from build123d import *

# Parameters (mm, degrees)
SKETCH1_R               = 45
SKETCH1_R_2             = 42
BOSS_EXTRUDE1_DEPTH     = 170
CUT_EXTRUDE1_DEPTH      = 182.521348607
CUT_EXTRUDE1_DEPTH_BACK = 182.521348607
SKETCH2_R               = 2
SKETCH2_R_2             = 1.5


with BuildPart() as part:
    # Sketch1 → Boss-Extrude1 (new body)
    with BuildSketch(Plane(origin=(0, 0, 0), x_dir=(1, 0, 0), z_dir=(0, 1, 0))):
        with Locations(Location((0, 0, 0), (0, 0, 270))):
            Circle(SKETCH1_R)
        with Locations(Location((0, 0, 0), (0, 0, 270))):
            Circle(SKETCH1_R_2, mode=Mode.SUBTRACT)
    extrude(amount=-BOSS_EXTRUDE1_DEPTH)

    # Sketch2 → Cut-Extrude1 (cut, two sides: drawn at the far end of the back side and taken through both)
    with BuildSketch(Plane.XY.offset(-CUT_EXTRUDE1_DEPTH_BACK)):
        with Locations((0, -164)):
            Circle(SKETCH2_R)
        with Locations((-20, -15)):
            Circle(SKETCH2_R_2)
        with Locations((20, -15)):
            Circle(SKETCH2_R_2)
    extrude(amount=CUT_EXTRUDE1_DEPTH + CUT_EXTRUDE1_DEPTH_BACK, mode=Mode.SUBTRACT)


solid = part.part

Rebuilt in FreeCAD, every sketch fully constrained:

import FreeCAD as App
import Part
import Sketcher
from FreeCAD import Vector
Q = App.Units.Quantity

doc = App.newDocument("Part")
body = doc.addObject("PartDesign::Body", "Body")

# Sketch on XZ plane
sketch1 = body.newObject("Sketcher::SketchObject", "Sketch")
sketch1.AttachmentSupport = (doc.getObject("XZ_Plane"), [""])
sketch1.MapMode = "FlatFace"
sketch1.addGeometry(Part.Circle(Vector(0, 0, 0), Vector(0, 0, 1), 45), False)
sketch1.addGeometry(Part.Circle(Vector(0, 0, 0), Vector(0, 0, 1), 42), False)
sketch1.addConstraint(Sketcher.Constraint("Coincident", 0, 3, -1, 1))
sketch1.addConstraint(Sketcher.Constraint("Coincident", 1, 3, -1, 1))
sketch1.addConstraint(Sketcher.Constraint("Diameter", 0, Q("90 mm")))
sketch1.addConstraint(Sketcher.Constraint("Diameter", 1, Q("84 mm")))
pad1 = body.newObject("PartDesign::Pad", "Pad")
pad1.Profile = sketch1
pad1.Length = 170

# Sketch on XY plane
sketch2 = body.newObject("Sketcher::SketchObject", "Sketch001")
sketch2.AttachmentSupport = (doc.getObject("XY_Plane"), [""])
sketch2.MapMode = "FlatFace"
sketch2.addGeometry(Part.Circle(Vector(0, -164, 0), Vector(0, 0, 1), 2), False)
sketch2.addGeometry(Part.Circle(Vector(-20, -15, 0), Vector(0, 0, 1), 1.5), False)
sketch2.addGeometry(Part.Circle(Vector(20, -15, 0), Vector(0, 0, 1), 1.5), False)
sketch2.addConstraint(Sketcher.Constraint("Equal", 1, 2))
sketch2.addConstraint(Sketcher.Constraint("Symmetric", 1, 3, 2, 3, -2))
sketch2.addConstraint(Sketcher.Constraint("PointOnObject", 0, 3, -2))
sketch2.addConstraint(Sketcher.Constraint("Diameter", 0, Q("4 mm")))
sketch2.addConstraint(Sketcher.Constraint("Diameter", 1, Q("3 mm")))
sketch2.addConstraint(Sketcher.Constraint("DistanceY", 0, 3, -1, 1, Q("164 mm")))
sketch2.addConstraint(Sketcher.Constraint("DistanceX", 1, 3, -1, 1, Q("20 mm")))
sketch2.addConstraint(Sketcher.Constraint("DistanceY", 1, 3, -1, 1, Q("15 mm")))
pocket1 = body.newObject("PartDesign::Pocket", "Pocket")
pocket1.Profile = sketch2
pocket1.Type = "ThroughAll"
pocket1.Midplane = True

doc.recompute()
